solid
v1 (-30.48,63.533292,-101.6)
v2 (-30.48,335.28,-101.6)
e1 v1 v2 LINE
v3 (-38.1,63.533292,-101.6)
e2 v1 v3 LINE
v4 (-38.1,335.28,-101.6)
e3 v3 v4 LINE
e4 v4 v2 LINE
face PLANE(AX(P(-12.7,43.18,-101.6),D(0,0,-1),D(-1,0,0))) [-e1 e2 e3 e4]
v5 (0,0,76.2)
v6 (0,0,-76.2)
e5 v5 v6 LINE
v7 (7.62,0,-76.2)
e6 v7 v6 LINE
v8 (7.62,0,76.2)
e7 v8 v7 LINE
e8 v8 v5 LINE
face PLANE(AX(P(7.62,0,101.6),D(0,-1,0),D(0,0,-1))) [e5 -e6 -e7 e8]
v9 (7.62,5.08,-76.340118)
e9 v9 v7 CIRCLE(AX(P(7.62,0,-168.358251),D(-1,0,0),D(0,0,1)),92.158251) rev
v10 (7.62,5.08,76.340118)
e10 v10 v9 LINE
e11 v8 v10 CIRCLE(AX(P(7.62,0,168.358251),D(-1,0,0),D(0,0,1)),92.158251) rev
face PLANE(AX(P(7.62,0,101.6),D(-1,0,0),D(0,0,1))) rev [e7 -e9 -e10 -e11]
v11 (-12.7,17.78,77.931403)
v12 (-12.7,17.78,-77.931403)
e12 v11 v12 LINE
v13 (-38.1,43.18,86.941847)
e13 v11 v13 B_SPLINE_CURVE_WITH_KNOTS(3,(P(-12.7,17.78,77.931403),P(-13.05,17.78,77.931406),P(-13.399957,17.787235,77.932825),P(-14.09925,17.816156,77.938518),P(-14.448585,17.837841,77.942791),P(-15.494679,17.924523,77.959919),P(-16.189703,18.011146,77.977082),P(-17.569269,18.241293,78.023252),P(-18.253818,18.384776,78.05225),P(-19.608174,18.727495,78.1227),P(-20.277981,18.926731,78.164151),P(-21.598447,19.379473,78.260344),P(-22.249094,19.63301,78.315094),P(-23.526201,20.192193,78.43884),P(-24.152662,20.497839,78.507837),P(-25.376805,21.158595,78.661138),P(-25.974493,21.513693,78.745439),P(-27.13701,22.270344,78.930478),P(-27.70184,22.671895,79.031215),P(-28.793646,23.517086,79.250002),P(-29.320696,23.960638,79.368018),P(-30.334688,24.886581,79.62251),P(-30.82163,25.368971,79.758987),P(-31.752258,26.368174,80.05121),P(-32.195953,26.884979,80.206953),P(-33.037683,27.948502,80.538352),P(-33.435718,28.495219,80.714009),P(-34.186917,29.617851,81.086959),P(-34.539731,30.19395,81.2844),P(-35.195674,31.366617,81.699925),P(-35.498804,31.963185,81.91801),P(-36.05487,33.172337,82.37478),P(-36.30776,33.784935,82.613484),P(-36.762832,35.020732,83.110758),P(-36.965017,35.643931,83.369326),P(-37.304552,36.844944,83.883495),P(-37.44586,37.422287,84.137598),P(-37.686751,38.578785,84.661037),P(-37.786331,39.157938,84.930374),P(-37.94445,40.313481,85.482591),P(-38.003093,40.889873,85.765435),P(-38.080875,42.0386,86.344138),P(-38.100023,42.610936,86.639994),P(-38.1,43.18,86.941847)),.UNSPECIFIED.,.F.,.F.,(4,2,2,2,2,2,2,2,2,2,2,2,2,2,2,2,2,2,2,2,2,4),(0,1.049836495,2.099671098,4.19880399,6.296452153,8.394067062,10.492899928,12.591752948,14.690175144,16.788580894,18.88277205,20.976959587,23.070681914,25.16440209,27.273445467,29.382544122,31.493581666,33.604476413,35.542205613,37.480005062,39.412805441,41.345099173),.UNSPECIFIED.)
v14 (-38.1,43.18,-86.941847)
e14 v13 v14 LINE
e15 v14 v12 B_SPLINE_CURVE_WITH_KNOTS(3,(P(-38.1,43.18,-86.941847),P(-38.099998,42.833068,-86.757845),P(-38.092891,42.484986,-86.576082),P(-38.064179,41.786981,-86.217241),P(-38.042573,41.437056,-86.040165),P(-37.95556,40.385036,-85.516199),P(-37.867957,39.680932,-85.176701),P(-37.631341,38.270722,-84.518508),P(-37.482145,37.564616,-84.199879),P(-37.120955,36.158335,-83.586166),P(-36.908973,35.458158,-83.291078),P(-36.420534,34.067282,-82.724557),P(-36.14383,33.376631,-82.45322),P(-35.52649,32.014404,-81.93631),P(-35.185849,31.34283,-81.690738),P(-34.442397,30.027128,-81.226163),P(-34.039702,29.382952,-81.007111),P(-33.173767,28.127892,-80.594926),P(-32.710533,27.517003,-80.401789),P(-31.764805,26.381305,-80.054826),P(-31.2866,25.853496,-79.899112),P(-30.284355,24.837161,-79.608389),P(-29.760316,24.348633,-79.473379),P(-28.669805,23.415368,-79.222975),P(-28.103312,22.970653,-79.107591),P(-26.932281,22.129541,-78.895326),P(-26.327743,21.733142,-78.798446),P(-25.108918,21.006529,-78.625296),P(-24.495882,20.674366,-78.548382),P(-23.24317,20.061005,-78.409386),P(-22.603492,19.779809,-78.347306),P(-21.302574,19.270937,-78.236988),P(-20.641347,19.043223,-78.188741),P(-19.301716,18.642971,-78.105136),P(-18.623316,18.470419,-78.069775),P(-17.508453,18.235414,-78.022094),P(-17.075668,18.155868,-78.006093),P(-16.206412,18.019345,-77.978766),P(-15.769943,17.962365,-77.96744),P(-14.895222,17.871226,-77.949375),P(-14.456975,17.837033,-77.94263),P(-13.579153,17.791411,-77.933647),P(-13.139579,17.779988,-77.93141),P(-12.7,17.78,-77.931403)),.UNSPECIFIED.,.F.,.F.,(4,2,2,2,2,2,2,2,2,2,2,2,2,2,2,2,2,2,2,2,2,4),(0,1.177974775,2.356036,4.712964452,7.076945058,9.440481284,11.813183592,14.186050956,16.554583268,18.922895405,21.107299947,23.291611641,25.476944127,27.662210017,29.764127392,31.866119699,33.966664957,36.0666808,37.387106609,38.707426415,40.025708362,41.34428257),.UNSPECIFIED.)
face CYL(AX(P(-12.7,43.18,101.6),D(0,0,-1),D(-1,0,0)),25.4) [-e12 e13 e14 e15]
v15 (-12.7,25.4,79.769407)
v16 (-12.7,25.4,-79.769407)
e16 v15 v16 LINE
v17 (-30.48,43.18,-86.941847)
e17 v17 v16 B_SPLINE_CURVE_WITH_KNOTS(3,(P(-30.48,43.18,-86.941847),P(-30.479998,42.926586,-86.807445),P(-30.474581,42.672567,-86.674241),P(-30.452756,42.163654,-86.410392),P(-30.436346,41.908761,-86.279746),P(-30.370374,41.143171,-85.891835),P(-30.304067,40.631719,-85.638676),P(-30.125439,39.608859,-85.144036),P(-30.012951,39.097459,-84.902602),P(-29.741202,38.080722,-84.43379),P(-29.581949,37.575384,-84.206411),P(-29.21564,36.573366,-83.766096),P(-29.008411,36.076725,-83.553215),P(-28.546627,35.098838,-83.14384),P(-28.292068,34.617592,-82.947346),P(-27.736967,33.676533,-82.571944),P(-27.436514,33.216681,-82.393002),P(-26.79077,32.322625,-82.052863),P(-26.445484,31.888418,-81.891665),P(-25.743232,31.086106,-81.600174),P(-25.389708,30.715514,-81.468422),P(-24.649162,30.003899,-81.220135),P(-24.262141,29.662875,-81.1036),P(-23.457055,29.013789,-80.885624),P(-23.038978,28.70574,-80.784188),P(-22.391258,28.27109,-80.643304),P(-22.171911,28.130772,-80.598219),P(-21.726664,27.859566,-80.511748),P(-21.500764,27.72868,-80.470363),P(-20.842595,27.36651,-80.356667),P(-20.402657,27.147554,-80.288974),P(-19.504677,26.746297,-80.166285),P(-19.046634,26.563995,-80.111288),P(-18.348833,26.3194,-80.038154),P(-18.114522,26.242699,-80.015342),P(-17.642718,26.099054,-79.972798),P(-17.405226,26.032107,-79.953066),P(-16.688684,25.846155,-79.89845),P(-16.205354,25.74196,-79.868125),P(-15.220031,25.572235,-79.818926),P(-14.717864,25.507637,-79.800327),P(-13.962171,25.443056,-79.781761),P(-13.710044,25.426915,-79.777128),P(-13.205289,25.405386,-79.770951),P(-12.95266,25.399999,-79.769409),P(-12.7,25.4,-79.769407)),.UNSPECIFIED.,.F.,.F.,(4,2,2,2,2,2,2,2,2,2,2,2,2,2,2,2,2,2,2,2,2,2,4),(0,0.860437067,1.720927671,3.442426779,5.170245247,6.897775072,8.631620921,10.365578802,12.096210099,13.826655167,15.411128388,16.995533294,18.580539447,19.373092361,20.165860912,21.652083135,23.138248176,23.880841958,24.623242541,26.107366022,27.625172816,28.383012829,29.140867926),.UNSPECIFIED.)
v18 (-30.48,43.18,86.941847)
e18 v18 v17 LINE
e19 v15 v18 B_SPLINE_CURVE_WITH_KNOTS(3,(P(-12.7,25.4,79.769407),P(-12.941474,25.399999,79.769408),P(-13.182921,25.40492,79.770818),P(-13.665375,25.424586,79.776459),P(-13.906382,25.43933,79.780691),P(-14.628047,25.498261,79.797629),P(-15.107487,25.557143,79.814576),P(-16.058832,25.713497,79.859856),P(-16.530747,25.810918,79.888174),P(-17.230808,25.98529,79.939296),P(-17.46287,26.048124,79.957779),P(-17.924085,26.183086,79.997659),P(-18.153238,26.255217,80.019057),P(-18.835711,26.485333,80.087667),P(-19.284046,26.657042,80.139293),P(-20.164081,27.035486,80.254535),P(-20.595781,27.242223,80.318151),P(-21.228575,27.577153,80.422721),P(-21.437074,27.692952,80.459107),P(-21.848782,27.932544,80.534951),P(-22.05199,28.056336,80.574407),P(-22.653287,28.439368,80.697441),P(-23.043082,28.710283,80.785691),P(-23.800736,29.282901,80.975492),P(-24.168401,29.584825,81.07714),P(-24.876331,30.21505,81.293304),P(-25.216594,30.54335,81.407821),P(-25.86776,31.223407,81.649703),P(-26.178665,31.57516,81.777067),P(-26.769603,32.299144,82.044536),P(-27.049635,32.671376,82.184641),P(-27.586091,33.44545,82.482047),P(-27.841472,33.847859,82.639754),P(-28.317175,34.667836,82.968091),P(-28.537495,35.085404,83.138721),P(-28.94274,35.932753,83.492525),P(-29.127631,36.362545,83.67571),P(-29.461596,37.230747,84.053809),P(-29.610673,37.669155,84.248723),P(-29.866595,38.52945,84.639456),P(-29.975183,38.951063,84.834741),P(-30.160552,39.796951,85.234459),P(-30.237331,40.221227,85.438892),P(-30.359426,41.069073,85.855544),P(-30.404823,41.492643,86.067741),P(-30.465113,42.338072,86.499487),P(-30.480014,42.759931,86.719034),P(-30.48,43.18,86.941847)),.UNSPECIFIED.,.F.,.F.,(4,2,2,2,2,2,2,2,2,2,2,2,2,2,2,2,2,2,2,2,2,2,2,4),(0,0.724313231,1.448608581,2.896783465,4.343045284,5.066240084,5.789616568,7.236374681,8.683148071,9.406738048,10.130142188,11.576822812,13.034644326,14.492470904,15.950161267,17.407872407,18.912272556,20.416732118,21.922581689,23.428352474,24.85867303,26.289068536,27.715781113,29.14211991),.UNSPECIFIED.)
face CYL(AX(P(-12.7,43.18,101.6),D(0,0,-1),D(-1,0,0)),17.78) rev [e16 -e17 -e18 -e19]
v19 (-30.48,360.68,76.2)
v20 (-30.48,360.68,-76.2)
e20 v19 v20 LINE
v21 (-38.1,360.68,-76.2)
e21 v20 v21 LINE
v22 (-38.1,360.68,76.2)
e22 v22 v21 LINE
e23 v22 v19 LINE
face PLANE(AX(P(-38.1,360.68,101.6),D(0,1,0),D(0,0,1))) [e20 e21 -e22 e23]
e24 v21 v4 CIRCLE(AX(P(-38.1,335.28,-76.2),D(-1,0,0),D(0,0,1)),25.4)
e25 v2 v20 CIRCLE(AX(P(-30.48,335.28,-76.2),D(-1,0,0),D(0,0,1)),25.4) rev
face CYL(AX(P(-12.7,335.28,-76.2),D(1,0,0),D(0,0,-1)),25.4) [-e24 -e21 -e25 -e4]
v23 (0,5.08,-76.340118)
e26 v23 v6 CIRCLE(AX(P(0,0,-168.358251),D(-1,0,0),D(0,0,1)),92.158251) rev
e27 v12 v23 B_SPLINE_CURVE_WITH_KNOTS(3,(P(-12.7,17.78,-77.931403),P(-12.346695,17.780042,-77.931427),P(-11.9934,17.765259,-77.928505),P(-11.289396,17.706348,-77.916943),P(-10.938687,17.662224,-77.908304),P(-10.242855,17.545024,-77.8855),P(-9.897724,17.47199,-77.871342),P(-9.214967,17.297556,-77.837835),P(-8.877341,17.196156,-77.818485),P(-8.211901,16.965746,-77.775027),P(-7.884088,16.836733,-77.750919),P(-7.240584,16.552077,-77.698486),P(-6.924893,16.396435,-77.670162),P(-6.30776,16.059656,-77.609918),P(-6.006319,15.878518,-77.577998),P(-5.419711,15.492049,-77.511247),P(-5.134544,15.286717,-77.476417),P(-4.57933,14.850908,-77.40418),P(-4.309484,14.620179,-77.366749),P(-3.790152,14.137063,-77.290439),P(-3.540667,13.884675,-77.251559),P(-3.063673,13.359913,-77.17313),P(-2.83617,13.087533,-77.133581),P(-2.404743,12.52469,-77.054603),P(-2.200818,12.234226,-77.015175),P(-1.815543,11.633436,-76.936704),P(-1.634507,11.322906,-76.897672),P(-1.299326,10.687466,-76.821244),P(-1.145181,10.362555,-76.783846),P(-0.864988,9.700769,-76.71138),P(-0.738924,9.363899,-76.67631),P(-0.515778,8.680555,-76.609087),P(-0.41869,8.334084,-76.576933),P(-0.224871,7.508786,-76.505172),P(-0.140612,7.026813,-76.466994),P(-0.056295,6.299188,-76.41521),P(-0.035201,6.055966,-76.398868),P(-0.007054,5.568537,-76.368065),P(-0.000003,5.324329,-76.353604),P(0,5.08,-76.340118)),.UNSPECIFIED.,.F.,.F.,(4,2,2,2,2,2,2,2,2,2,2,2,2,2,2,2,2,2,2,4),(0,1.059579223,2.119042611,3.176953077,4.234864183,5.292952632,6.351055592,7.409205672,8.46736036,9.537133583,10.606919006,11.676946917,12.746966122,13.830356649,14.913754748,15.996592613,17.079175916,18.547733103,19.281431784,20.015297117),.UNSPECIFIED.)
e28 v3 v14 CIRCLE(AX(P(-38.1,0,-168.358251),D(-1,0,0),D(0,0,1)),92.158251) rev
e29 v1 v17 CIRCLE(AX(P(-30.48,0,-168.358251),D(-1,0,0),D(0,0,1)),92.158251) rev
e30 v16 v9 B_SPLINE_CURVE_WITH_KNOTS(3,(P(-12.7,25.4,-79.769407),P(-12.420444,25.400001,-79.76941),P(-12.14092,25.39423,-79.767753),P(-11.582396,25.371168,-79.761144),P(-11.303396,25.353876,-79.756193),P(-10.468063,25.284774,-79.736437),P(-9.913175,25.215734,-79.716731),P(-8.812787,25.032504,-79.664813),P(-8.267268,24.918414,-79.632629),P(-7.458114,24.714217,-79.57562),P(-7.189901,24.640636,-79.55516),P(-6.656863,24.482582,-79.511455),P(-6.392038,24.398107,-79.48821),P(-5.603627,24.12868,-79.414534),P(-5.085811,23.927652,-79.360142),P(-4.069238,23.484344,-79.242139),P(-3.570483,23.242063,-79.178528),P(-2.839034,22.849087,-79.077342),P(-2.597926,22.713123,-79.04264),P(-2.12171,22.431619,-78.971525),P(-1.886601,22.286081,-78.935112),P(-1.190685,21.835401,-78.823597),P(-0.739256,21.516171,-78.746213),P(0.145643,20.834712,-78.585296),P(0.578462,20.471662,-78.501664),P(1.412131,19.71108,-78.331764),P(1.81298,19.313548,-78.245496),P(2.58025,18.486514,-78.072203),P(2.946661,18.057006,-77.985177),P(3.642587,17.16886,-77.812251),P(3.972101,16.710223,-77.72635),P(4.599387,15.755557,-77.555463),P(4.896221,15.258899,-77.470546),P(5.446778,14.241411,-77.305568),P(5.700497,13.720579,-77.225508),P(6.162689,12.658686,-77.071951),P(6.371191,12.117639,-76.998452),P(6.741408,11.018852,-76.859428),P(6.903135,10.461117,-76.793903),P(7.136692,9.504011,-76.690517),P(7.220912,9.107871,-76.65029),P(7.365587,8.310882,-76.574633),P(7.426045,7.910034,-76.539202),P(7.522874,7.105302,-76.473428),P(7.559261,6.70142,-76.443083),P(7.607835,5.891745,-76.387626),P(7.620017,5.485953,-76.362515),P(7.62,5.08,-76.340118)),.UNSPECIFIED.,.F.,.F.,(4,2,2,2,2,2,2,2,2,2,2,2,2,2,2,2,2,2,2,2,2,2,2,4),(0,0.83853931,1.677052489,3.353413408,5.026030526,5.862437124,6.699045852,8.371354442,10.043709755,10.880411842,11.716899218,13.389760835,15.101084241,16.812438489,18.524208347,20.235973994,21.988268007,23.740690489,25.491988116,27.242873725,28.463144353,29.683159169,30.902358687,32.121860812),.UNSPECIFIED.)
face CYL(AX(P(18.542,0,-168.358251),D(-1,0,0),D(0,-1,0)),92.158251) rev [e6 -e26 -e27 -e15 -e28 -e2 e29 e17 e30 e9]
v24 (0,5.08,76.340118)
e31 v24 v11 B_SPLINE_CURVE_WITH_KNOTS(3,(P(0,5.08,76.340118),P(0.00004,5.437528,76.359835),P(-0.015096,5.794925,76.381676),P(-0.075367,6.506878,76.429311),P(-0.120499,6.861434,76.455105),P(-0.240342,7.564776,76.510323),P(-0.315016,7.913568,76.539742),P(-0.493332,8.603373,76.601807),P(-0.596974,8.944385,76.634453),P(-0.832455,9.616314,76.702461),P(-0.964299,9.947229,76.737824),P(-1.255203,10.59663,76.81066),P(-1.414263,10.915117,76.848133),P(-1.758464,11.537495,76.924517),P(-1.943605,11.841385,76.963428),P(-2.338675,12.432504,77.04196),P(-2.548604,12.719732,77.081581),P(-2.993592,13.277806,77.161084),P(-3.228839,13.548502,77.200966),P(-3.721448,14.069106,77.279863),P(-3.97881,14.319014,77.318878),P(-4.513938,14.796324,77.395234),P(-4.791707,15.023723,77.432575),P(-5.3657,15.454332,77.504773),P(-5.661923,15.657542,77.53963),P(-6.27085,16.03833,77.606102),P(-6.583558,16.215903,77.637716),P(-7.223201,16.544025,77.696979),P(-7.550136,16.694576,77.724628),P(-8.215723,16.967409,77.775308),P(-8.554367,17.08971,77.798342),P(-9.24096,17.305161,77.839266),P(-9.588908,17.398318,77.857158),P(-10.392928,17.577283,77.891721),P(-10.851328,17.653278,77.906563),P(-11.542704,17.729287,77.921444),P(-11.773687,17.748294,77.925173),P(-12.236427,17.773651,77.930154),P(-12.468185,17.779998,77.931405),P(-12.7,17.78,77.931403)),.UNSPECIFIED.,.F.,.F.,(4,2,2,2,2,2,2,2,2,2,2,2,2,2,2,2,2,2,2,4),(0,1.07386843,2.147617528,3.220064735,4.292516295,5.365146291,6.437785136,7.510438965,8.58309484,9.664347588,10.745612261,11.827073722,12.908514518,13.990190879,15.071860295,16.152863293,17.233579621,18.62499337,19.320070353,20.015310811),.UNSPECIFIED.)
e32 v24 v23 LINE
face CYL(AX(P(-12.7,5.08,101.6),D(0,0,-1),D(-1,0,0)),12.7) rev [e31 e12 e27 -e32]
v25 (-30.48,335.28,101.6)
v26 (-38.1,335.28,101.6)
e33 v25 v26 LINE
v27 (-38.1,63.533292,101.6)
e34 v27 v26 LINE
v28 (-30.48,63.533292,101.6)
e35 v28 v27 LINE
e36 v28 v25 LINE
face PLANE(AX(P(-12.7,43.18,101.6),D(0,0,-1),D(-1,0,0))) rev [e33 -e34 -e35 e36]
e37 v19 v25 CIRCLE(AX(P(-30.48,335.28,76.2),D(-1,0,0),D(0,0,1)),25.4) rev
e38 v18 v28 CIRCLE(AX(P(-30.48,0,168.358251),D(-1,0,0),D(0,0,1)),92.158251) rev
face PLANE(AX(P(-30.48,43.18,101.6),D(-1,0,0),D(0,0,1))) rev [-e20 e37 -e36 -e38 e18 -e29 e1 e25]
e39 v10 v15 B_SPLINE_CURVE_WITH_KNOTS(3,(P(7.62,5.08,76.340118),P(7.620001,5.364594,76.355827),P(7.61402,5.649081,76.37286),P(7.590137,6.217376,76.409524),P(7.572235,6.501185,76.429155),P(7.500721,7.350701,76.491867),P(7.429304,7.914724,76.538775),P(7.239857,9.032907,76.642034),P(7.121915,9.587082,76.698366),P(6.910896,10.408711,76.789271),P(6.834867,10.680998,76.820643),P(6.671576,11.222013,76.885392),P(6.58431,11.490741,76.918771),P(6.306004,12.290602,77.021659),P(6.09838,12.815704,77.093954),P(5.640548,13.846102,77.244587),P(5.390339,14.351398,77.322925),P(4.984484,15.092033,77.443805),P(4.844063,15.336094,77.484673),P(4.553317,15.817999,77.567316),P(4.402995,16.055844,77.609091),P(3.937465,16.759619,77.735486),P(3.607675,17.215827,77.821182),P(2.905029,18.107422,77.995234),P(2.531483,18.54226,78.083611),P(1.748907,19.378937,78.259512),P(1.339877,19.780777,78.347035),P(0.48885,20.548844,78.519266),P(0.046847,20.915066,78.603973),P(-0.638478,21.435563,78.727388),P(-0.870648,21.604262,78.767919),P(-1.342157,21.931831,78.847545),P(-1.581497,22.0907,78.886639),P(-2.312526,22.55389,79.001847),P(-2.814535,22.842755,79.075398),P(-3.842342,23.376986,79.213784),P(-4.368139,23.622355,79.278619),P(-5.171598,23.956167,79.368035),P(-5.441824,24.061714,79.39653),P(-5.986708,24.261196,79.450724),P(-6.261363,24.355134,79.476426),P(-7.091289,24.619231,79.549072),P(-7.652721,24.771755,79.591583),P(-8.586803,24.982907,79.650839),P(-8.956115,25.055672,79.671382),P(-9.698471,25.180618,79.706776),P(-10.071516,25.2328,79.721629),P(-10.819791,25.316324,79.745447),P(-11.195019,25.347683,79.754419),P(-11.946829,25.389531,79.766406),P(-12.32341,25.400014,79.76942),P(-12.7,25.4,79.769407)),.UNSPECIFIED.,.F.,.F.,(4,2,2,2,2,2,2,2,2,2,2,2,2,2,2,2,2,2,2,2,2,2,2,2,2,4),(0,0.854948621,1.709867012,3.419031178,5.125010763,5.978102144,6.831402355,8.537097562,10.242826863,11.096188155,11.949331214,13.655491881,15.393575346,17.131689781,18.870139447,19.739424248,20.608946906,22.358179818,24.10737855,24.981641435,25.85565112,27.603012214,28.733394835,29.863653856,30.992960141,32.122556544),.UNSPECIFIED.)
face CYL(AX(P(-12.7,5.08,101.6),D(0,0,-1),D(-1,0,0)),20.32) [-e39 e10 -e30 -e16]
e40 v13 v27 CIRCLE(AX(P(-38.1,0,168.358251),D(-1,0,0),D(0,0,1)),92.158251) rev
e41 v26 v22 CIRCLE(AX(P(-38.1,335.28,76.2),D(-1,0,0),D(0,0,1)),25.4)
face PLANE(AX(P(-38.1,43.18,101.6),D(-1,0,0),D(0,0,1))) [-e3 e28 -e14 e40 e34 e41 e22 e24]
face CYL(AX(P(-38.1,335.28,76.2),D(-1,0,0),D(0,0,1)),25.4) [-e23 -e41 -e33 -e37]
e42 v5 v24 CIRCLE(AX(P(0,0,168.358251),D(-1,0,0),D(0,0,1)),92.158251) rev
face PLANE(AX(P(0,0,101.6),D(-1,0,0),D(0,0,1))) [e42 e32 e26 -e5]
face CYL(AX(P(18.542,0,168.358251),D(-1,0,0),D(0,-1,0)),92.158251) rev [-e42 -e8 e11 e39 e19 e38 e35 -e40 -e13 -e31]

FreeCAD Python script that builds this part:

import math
import FreeCAD as App
import Part
import Sketcher
Q = App.Units.Quantity


def edges_at(feature, points):
    """Names of the edges that pass closest to the given points."""
    edges = feature.Shape.Edges
    near = lambda p: min(range(len(edges)), key=lambda i: edges[i].distToShape(Part.Vertex(*p))[0])
    return sorted({f"Edge{near(p) + 1}" for p in points})

doc = App.newDocument("Part")
body = doc.addObject("PartDesign::Body", "Body")

# Sketch on XY plane
sketch1 = doc.addObject("Sketcher::SketchObject", "Sketch")
body.addObject(sketch1)
sketch1.AttachmentSupport = (doc.XY_Plane, [""])
sketch1.MapMode = "FlatFace"
sketch1.addGeometry([
    Part.LineSegment(App.Vector(0, 5, 0), App.Vector(0, 0, 0)),  # 0
    Part.LineSegment(App.Vector(0, 0, 0), App.Vector(8, 0, 0)),  # 1
    Part.LineSegment(App.Vector(8, 0, 0), App.Vector(8, 5, 0)),  # 2
    Part.ArcOfCircle(Part.Circle(App.Vector(-13, 5, 0), App.Vector(0, 0, 1), 20), math.radians(0), math.radians(90)),  # 3
    Part.ArcOfCircle(Part.Circle(App.Vector(-13, 43, 0), App.Vector(0, 0, 1), 18), math.radians(-180), math.radians(-90)),  # 4
    Part.LineSegment(App.Vector(-30, 43, 0), App.Vector(-30, 361, 0)),  # 5
    Part.LineSegment(App.Vector(-30, 361, 0), App.Vector(-38, 361, 0)),  # 6
    Part.LineSegment(App.Vector(-38, 361, 0), App.Vector(-38, 43, 0)),  # 7
    Part.ArcOfCircle(Part.Circle(App.Vector(-13, 43, 0), App.Vector(0, 0, 1), 25), math.radians(180), math.radians(270)),  # 8
    Part.ArcOfCircle(Part.Circle(App.Vector(-13, 5, 0), App.Vector(0, 0, 1), 13), math.radians(0), math.radians(90)),  # 9
], False)
sketch1.addConstraint([
    Sketcher.Constraint("Coincident", 0, 2, 1, 1),
    Sketcher.Constraint("Coincident", 1, 2, 2, 1),
    Sketcher.Constraint("Tangent", 2, 2, 3, 1),
    Sketcher.Constraint("Tangent", 3, 2, 4, 2),
    Sketcher.Constraint("Tangent", 4, 1, 5, 1),
    Sketcher.Constraint("Coincident", 5, 2, 6, 1),
    Sketcher.Constraint("Coincident", 6, 2, 7, 1),
    Sketcher.Constraint("Tangent", 7, 2, 8, 1),
    Sketcher.Constraint("Tangent", 8, 2, 9, 2),
    Sketcher.Constraint("Tangent", 9, 1, 0, 1),
    Sketcher.Constraint("Vertical", 0),
    Sketcher.Constraint("Horizontal", 1),
    Sketcher.Constraint("Vertical", 2),
    Sketcher.Constraint("Vertical", 5),
    Sketcher.Constraint("Horizontal", 6),
    Sketcher.Constraint("Vertical", 7),
    Sketcher.Constraint("Coincident", 0, 2, -1, 1),
    Sketcher.Constraint("Coincident", 8, 3, 4, 3),
    Sketcher.Constraint("Coincident", 9, 3, 3, 3),
    Sketcher.Constraint("Vertical", 3, 3, 4, 3),
    Sketcher.Constraint("Radius", 8, Q("1 in")),
    Sketcher.Constraint("Radius", 3, Q("0.8 in")),
    Sketcher.Constraint("Radius", 4, Q("0.7 in")),
    Sketcher.Constraint("DistanceY", 0, 2, 0, 1, Q("0.2 in")),
    Sketcher.Constraint("DistanceY", 5, 1, 5, 2, Q("12.5 in")),
])
pad1 = doc.addObject("PartDesign::Pad", "Pad")
body.addObject(pad1)
pad1.Profile = sketch1
pad1.Length = Q("8 in")
pad1.Midplane = True
doc.recompute()

fillet = doc.addObject("PartDesign::Fillet", "Fillet")
body.addObject(fillet)
fillet.Base = (pad1, edges_at(pad1, [(-34.29, 360.68, 101.6)]))
fillet.Radius = Q("1 in")
doc.recompute()

fillet2 = doc.addObject("PartDesign::Fillet", "Fillet001")
body.addObject(fillet2)
fillet2.Base = (fillet, edges_at(fillet, [(-34.29, 360.68, -101.6)]))
fillet2.Radius = Q("1 in")

# Sketch on YZ plane
sketch2 = doc.addObject("Sketcher::SketchObject", "Sketch001")
body.addObject(sketch2)
sketch2.AttachmentSupport = (doc.YZ_Plane, [""])
sketch2.MapMode = "FlatFace"
sketch2.AttachmentOffset = App.Placement(App.Vector(0, 0, 0.3 * 25.4), App.Rotation())
sketch2.addGeometry([
    Part.LineSegment(App.Vector(64, 102, 0), App.Vector(0, 102, 0)),  # 0
    Part.LineSegment(App.Vector(0, 102, 0), App.Vector(0, 76, 0)),  # 1
    Part.ArcOfCircle(Part.Circle(App.Vector(0, 168, 0), App.Vector(0, 0, 1), 92), math.radians(-90), math.radians(-46)),  # 2
    Part.LineSegment(App.Vector(0, -76, 0), App.Vector(0, -102, 0)),  # 3
    Part.LineSegment(App.Vector(0, -102, 0), App.Vector(64, -102, 0)),  # 4
    Part.ArcOfCircle(Part.Circle(App.Vector(0, -168, 0), App.Vector(0, 0, 1), 92), math.radians(46), math.radians(90)),  # 5
], False)
sketch2.addConstraint([
    Sketcher.Constraint("Coincident", 0, 2, 1, 1),
    Sketcher.Constraint("Coincident", 1, 2, 2, 1),
    Sketcher.Constraint("Coincident", 2, 2, 0, 1),
    Sketcher.Constraint("Coincident", 3, 2, 4, 1),
    Sketcher.Constraint("Coincident", 4, 2, 5, 1),
    Sketcher.Constraint("Coincident", 5, 2, 3, 1),
    Sketcher.Constraint("Horizontal", 0),
    Sketcher.Constraint("Vertical", 1),
    Sketcher.Constraint("Vertical", 3),
    Sketcher.Constraint("Horizontal", 4),
    Sketcher.Constraint("Equal", 2, 5),
    Sketcher.Constraint("Symmetric", 2, 3, 5, 3, -1, 1),
    Sketcher.Constraint("Symmetric", 0, 2, 3, 2, -1, 1),
    Sketcher.Constraint("PointOnObject", 2, 3, -2),
    Sketcher.Constraint("PointOnObject", 0, 2, -2),
    Sketcher.Constraint("DistanceY", 1, 2, 1, 1, Q("1 in")),
    Sketcher.Constraint("DistanceY", -1, 1, 0, 2, Q("4 in")),
    Sketcher.Constraint("Radius", 2, Q("92.158251 mm")),
])
pocket1 = doc.addObject("PartDesign::Pocket", "Pocket")
body.addObject(pocket1)
pocket1.Profile = sketch2
pocket1.Type = "ThroughAll"
pocket1.Midplane = True

doc.recompute()
